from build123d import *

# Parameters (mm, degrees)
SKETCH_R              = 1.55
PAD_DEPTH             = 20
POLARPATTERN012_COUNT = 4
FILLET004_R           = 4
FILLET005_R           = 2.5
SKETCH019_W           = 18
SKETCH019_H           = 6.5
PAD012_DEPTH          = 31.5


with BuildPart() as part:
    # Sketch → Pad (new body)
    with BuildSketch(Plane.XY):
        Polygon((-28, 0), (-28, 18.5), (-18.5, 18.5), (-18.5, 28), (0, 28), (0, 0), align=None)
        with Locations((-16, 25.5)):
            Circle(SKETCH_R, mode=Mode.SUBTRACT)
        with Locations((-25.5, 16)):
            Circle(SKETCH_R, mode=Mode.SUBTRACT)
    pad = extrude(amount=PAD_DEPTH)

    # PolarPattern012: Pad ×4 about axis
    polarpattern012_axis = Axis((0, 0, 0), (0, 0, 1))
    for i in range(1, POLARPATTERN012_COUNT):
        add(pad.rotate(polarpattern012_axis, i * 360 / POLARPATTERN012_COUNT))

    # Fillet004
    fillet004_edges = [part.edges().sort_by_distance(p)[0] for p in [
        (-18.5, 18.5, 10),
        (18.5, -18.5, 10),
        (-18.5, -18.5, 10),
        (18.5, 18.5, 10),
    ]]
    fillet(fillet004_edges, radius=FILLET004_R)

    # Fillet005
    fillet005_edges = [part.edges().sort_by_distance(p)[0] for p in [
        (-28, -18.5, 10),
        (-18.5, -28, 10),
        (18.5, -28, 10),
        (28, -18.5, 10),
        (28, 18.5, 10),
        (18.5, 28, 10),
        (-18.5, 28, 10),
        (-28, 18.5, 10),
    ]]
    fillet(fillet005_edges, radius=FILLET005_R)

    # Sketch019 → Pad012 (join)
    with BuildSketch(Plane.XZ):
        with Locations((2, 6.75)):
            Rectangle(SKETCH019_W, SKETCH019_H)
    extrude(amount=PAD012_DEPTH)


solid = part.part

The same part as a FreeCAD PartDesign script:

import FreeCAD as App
import Part
import Sketcher
from FreeCAD import Vector
Q = App.Units.Quantity


def edges_at(feature, points):
    """Names of the edges that pass closest to the given points."""
    edges = feature.Shape.Edges
    near = lambda p: min(range(len(edges)), key=lambda i: edges[i].distToShape(Part.Vertex(*p))[0])
    return sorted({f"Edge{near(p) + 1}" for p in points})

doc = App.newDocument("Part")
params = doc.addObject("Spreadsheet::Sheet", "Params")
for row, (alias, value) in enumerate([
    ("sketch1_diameter", "3.1 mm"),
    ("sketch1_width", "28 mm"),
    ("sketch1_width2", "18.5 mm"),
    ("pad1_length", "20 mm"),
    ("fillet_radius", "4 mm"),
    ("fillet2_radius", "2.5 mm"),
    ("sketch2_width", "18 mm"),
    ("sketch2_height", "6.5 mm"),
    ("pad2_length", "31.5 mm"),
], start=1):
    params.set(f"A{row}", alias)
    params.set(f"B{row}", "=" + value)
    params.setAlias(f"B{row}", alias)

body = doc.addObject("PartDesign::Body", "Body")

# Sketch on XY plane
sketch1 = body.newObject("Sketcher::SketchObject", "Sketch")
sketch1.AttachmentSupport = (doc.getObject("XY_Plane"), [""])
sketch1.MapMode = "FlatFace"
sketch1.addGeometry([
    Part.LineSegment(Vector(-28, 18.5, 0), Vector(-28, 0, 0)),  # 0
    Part.LineSegment(Vector(-28, 0, 0), Vector(0, 0, 0)),  # 1
    Part.LineSegment(Vector(0, 0, 0), Vector(0, 28, 0)),  # 2
    Part.LineSegment(Vector(0, 28, 0), Vector(-18.5, 28, 0)),  # 3
    Part.LineSegment(Vector(-18.5, 28, 0), Vector(-18.5, 18.5, 0)),  # 4
    Part.LineSegment(Vector(-18.5, 18.5, 0), Vector(-28, 18.5, 0)),  # 5
    Part.Circle(Vector(-25.5, 16, 0), Vector(0, 0, 1), 1.55),  # 6
    Part.Circle(Vector(-16, 25.5, 0), Vector(0, 0, 1), 1.55),  # 7
], False)
sketch1.addConstraint([
    Sketcher.Constraint("Coincident", 0, 2, 1, 1),
    Sketcher.Constraint("Coincident", 1, 2, 2, 1),
    Sketcher.Constraint("Coincident", 2, 2, 3, 1),
    Sketcher.Constraint("Coincident", 3, 2, 4, 1),
    Sketcher.Constraint("Coincident", 4, 2, 5, 1),
    Sketcher.Constraint("Coincident", 5, 2, 0, 1),
    Sketcher.Constraint("Vertical", 0),
    Sketcher.Constraint("Horizontal", 1),
    Sketcher.Constraint("Vertical", 2),
    Sketcher.Constraint("Horizontal", 3),
    Sketcher.Constraint("Vertical", 4),
    Sketcher.Constraint("Horizontal", 5),
    Sketcher.Constraint("Coincident", 1, 2, -1, 1),
    Sketcher.Constraint("Equal", 6, 7),
    Sketcher.Constraint("Equal", 3, 0),
    Sketcher.Constraint("Equal", 1, 2),
    Sketcher.Constraint("Diameter", 6, Q("3.1 mm")),
    Sketcher.Constraint("DistanceX", 1, 1, 1, 2, Q("28 mm")),
    Sketcher.Constraint("DistanceX", 3, 2, 3, 1, Q("18.5 mm")),
    Sketcher.Constraint("DistanceY", -1, 1, 6, 3, Q("16 mm")),
    Sketcher.Constraint("DistanceX", 7, 3, -1, 1, Q("16 mm")),
    Sketcher.Constraint("DistanceX", 6, 3, 3, 2, Q("7 mm")),
    Sketcher.Constraint("DistanceY", 4, 2, 7, 3, Q("7 mm")),
])
sketch1.setExpression("Constraints[16]", "Params.sketch1_diameter")
sketch1.setExpression("Constraints[17]", "Params.sketch1_width")
sketch1.setExpression("Constraints[18]", "Params.sketch1_width2")
pad1 = body.newObject("PartDesign::Pad", "Pad")
pad1.Profile = sketch1
pad1.setExpression("Length", "Params.pad1_length")
doc.recompute()

polarpattern = body.newObject("PartDesign::PolarPattern", "PolarPattern")
polarpattern.Originals = [pad1]
polarpattern.Axis = (doc.getObject("Z_Axis"), [""])
polarpattern.Angle = 360
polarpattern.Occurrences = 4
body.Tip = polarpattern
doc.recompute()

fillet = body.newObject("PartDesign::Fillet", "Fillet")
fillet.Base = (polarpattern, edges_at(polarpattern, [
    (-18.5, 18.5, 10),
    (18.5, -18.5, 10),
    (-18.5, -18.5, 10),
    (18.5, 18.5, 10),
]))
fillet.setExpression("Radius", "Params.fillet_radius")
doc.recompute()

fillet2 = body.newObject("PartDesign::Fillet", "Fillet001")
fillet2.Base = (fillet, edges_at(fillet, [
    (-28, -18.5, 10),
    (-18.5, -28, 10),
    (18.5, -28, 10),
    (28, -18.5, 10),
    (28, 18.5, 10),
    (18.5, 28, 10),
    (-18.5, 28, 10),
    (-28, 18.5, 10),
]))
fillet2.setExpression("Radius", "Params.fillet2_radius")

# Sketch on XZ plane
sketch2 = body.newObject("Sketcher::SketchObject", "Sketch001")
sketch2.AttachmentSupport = (doc.getObject("XZ_Plane"), [""])
sketch2.MapMode = "FlatFace"
sketch2.addGeometry([
    Part.LineSegment(Vector(-7, 10, 0), Vector(-7, 3.5, 0)),
    Part.LineSegment(Vector(-7, 3.5, 0), Vector(11, 3.5, 0)),
    Part.LineSegment(Vector(11, 3.5, 0), Vector(11, 10, 0)),
    Part.LineSegment(Vector(11, 10, 0), Vector(-7, 10, 0)),
], False)
sketch2.addConstraint([
    Sketcher.Constraint("Coincident", 0, 2, 1, 1),
    Sketcher.Constraint("Coincident", 1, 2, 2, 1),
    Sketcher.Constraint("Coincident", 2, 2, 3, 1),
    Sketcher.Constraint("Coincident", 3, 2, 0, 1),
    Sketcher.Constraint("Vertical", 0),
    Sketcher.Constraint("Horizontal", 1),
    Sketcher.Constraint("Vertical", 2),
    Sketcher.Constraint("Horizontal", 3),
    Sketcher.Constraint("DistanceX", 1, 1, 1, 2, Q("18 mm")),
    Sketcher.Constraint("DistanceY", 0, 2, 0, 1, Q("6.5 mm")),
    Sketcher.Constraint("DistanceX", 0, 2, -1, 1, Q("7 mm")),
    Sketcher.Constraint("DistanceY", -1, 1, 2, 2, Q("10 mm")),
])
sketch2.setExpression("Constraints[8]", "Params.sketch2_width")
sketch2.setExpression("Constraints[9]", "Params.sketch2_height")
pad2 = body.newObject("PartDesign::Pad", "Pad001")
pad2.Profile = sketch2
pad2.setExpression("Length", "Params.pad2_length")

doc.recompute()
